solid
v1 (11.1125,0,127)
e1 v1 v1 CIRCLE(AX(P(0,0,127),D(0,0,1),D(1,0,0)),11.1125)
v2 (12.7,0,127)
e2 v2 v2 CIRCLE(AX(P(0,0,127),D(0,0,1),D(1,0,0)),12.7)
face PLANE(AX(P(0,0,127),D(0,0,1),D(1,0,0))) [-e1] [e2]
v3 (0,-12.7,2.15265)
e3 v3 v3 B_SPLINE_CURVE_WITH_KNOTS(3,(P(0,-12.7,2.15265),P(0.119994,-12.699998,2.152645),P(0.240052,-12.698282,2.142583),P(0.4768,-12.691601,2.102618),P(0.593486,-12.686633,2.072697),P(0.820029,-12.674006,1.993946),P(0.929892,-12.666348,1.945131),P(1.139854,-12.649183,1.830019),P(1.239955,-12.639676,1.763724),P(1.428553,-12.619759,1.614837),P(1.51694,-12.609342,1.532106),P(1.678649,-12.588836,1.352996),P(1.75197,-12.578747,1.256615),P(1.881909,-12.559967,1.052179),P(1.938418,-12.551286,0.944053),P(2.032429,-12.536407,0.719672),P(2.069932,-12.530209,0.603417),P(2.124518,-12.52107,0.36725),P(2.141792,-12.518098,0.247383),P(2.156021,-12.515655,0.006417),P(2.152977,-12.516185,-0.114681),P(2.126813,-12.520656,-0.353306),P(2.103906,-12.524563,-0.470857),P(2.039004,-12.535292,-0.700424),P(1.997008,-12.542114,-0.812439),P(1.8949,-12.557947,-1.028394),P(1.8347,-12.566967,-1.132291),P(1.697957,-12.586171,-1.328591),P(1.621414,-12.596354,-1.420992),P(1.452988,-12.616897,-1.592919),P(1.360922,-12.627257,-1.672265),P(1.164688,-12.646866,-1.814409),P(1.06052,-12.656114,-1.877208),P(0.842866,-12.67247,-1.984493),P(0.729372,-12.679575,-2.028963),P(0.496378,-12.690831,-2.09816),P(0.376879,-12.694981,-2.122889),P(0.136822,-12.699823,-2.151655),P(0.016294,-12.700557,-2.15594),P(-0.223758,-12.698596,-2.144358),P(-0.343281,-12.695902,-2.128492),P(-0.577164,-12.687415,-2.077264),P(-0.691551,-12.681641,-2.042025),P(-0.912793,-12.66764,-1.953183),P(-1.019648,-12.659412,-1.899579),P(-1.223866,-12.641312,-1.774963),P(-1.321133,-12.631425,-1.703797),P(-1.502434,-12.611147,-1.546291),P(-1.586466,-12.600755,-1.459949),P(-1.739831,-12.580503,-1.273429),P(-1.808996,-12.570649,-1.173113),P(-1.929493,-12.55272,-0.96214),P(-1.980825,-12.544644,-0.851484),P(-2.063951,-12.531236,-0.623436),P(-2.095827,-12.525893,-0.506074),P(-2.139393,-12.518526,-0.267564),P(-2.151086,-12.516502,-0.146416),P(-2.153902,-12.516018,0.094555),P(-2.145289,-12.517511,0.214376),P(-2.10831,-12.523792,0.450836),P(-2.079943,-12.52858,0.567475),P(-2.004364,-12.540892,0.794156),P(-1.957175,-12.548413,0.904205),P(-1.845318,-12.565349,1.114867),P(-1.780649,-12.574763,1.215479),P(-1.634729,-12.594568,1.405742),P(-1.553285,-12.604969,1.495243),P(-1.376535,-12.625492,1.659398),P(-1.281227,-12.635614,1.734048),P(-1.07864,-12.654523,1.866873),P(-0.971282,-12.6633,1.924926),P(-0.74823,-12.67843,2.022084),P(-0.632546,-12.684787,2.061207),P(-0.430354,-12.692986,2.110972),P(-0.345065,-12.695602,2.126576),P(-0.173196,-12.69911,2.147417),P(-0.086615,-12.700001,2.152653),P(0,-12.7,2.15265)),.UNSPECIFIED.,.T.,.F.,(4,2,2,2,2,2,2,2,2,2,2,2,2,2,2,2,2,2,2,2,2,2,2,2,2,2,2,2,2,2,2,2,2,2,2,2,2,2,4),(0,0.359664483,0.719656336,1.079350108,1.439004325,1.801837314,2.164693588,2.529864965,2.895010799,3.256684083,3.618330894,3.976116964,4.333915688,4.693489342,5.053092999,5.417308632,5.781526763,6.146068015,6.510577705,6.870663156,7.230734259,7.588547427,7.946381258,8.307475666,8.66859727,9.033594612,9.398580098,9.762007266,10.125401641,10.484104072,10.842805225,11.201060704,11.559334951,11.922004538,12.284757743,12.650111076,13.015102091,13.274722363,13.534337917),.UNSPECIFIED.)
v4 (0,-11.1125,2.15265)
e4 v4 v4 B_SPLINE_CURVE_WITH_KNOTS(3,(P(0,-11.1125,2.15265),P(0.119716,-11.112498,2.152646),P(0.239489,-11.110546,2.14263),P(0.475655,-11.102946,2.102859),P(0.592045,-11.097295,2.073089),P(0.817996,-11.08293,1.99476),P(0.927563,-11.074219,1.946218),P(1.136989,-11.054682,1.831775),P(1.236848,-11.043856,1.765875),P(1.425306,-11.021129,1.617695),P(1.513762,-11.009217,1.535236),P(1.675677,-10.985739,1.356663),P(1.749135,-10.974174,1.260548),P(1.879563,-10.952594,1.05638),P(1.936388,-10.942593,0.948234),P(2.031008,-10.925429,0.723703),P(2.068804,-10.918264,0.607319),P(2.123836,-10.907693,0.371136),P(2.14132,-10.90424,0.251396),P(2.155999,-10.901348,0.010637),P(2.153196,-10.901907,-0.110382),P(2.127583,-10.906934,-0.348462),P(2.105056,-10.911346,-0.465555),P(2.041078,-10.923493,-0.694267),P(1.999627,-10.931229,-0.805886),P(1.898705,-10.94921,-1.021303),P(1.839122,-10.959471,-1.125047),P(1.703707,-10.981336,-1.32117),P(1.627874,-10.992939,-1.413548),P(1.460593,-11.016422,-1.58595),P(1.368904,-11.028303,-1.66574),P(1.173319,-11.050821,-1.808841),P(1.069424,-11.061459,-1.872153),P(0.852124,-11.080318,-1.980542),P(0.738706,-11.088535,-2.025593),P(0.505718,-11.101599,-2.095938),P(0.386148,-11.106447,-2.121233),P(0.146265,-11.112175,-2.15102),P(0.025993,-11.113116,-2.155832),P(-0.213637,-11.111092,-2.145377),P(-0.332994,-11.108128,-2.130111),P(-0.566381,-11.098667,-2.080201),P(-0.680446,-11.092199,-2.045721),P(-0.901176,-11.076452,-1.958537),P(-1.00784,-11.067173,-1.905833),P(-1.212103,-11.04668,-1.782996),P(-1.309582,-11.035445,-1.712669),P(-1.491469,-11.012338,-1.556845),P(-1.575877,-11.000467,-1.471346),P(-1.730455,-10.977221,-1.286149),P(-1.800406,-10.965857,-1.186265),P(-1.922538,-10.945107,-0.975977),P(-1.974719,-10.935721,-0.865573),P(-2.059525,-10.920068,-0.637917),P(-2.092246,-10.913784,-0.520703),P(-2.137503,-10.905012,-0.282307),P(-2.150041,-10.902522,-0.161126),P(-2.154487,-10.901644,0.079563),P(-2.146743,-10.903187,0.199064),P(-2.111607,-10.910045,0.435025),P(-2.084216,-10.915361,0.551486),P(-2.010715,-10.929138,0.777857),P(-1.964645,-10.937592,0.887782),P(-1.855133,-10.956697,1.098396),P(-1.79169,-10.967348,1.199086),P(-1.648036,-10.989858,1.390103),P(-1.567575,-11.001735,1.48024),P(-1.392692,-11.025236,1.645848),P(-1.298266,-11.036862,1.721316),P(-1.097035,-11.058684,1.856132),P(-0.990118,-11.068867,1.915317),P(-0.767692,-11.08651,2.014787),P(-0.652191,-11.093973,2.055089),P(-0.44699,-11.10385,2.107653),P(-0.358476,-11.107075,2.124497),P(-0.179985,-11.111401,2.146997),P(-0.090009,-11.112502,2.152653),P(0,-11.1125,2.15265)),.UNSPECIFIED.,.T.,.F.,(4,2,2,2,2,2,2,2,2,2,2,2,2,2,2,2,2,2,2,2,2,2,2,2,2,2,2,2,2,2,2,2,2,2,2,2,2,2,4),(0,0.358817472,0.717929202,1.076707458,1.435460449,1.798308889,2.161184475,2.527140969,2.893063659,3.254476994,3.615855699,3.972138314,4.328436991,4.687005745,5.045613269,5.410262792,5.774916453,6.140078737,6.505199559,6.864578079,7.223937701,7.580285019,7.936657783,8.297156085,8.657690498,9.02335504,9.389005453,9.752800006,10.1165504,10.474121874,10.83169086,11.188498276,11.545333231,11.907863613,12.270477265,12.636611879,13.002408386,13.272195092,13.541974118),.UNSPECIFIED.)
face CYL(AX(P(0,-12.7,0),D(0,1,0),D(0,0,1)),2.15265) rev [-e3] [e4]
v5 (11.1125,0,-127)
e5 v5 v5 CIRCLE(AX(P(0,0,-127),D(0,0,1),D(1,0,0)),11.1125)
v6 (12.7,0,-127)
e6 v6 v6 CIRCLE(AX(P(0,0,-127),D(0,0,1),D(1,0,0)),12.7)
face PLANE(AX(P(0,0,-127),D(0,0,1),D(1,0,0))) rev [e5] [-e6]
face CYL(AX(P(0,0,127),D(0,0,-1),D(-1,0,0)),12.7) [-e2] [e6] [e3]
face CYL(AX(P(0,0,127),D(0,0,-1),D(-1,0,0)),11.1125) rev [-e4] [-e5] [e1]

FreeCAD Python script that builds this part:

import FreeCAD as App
import Part
import Sketcher
Q = App.Units.Quantity

doc = App.newDocument("Part")
params = doc.addObject("Spreadsheet::Sheet", "Params")
for row, (alias, value) in enumerate([
    ("sketch1_diameter", "1 in"),
    ("sketch1_diameter2", "0.875 in"),
    ("pad1_length", "10 in"),
], start=1):
    params.set(f"A{row}", alias)
    params.set(f"B{row}", "=" + value)
    params.setAlias(f"B{row}", alias)

body = doc.addObject("PartDesign::Body", "Body")

# Sketch on XY plane
sketch1 = body.newObject("Sketcher::SketchObject", "Sketch")
sketch1.AttachmentSupport = (doc.getObject("XY_Plane"), [""])
sketch1.MapMode = "FlatFace"
sketch1.addGeometry([
    Part.Circle(App.Vector(0, 0, 0), App.Vector(0, 0, 1), 13),
    Part.Circle(App.Vector(0, 0, 0), App.Vector(0, 0, 1), 11),
], False)
sketch1.addConstraint([
    Sketcher.Constraint("Coincident", 0, 3, -1, 1),
    Sketcher.Constraint("Coincident", 1, 3, -1, 1),
    Sketcher.Constraint("Diameter", 0, Q("1 in")),
    Sketcher.Constraint("Diameter", 1, Q("0.875 in")),
])
sketch1.setExpression("Constraints[2]", "Params.sketch1_diameter")
sketch1.setExpression("Constraints[3]", "Params.sketch1_diameter2")
pad1 = body.newObject("PartDesign::Pad", "Pad")
pad1.Profile = sketch1
pad1.setExpression("Length", "Params.pad1_length")
pad1.Midplane = True

# Sketch on XZ plane
sketch2 = body.newObject("Sketcher::SketchObject", "Sketch001")
sketch2.AttachmentSupport = (doc.getObject("XZ_Plane"), [""])
sketch2.MapMode = "FlatFace"
sketch2.addGeometry(Part.Circle(App.Vector(0, 0, 0), App.Vector(0, 0, 1), 2.2), False)
sketch2.addConstraint([
    Sketcher.Constraint("Coincident", 0, 3, -1, 1),
    Sketcher.Constraint("Diameter", 0, Q("0.1695 in")),
])
pocket1 = body.newObject("PartDesign::Pocket", "Pocket")
pocket1.Profile = sketch2
pocket1.Type = "ThroughAll"
pocket1.Reversed = True

doc.recompute()
